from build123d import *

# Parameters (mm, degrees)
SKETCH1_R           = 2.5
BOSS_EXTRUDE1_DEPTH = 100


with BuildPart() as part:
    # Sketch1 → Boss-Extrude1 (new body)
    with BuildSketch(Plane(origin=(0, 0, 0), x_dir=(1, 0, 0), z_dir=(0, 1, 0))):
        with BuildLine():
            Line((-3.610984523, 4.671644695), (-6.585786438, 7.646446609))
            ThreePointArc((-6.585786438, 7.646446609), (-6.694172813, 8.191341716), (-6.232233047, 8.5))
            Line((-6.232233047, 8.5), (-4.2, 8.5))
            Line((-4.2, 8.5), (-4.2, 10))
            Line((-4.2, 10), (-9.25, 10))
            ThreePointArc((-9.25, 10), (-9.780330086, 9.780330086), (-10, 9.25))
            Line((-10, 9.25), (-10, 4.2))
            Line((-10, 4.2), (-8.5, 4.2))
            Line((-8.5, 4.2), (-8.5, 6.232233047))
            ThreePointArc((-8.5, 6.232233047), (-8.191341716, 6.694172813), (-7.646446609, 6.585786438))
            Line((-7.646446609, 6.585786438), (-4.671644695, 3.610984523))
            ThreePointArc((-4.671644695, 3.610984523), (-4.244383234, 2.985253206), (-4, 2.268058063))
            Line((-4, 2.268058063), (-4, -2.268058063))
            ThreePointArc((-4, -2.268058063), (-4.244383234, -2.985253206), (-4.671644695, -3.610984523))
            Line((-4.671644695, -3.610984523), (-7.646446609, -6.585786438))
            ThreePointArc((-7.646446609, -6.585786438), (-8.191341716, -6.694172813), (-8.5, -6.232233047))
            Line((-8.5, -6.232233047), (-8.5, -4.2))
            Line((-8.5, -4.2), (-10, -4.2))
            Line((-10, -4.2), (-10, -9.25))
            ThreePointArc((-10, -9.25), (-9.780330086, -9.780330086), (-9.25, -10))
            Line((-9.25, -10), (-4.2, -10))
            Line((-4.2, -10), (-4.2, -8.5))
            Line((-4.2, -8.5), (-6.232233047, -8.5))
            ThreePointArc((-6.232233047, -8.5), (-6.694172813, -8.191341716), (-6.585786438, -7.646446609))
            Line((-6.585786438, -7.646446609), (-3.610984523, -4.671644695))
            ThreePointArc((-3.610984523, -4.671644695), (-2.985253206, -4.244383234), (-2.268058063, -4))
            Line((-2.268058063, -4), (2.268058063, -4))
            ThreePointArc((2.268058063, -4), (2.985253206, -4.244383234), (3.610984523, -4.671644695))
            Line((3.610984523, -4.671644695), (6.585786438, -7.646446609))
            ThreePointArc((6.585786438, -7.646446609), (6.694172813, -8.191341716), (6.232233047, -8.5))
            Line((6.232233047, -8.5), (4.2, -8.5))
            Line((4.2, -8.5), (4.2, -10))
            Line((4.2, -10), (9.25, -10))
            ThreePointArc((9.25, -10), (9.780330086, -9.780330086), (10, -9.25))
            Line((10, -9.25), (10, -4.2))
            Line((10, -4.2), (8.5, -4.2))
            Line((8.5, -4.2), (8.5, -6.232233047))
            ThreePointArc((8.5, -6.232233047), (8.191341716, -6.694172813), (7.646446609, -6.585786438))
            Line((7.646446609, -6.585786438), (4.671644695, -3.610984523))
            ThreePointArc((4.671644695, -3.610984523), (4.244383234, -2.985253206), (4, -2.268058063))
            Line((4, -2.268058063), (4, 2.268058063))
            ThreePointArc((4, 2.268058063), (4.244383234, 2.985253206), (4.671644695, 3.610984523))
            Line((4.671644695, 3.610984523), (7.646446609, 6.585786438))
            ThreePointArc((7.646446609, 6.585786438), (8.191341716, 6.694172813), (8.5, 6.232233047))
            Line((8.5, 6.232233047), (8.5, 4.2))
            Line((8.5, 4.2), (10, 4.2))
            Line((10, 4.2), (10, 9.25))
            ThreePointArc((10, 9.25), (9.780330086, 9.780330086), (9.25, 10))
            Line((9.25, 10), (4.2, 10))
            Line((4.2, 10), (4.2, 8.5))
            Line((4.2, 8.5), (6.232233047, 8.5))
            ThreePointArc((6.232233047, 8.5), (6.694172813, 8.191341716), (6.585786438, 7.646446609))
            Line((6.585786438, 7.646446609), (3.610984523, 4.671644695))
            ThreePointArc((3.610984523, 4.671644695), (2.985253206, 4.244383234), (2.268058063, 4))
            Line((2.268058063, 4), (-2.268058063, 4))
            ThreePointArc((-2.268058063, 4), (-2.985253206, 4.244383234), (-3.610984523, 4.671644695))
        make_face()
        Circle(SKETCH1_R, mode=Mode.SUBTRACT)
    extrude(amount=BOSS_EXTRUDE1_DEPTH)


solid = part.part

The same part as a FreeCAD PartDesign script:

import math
import FreeCAD as App
import Part
import Sketcher
from FreeCAD import Vector
Q = App.Units.Quantity

doc = App.newDocument("Part")
body = doc.addObject("PartDesign::Body", "Body")

# Sketch on XZ plane
sketch1 = doc.addObject("Sketcher::SketchObject", "Sketch")
body.addObject(sketch1)
sketch1.AttachmentSupport = (doc.XZ_Plane, [""])
sketch1.MapMode = "FlatFace"
sketch1.addGeometry(Part.LineSegment(Vector(-3.6, -4.7, 0), Vector(-6.6, -7.6, 0)), False)
sketch1.addGeometry(Part.ArcOfCircle(Part.Circle(Vector(-6.2, -8, 0), Vector(0, 0, 1), 0.5), math.radians(135), math.radians(270)), False)
sketch1.addGeometry(Part.LineSegment(Vector(-6.2, -8.5, 0), Vector(-4.2, -8.5, 0)), False)
sketch1.addGeometry(Part.LineSegment(Vector(-4.2, -8.5, 0), Vector(-4.2, -10, 0)), False)
sketch1.addGeometry(Part.LineSegment(Vector(-4.2, -10, 0), Vector(-9.2, -10, 0)), False)
sketch1.addGeometry(Part.ArcOfCircle(Part.Circle(Vector(-9.2, -9.2, 0), Vector(0, 0, 1), 0.8), math.radians(180), math.radians(270)), False)
sketch1.addGeometry(Part.LineSegment(Vector(-10, -9.2, 0), Vector(-10, -4.2, 0)), False)
sketch1.addGeometry(Part.LineSegment(Vector(-10, -4.2, 0), Vector(-8.5, -4.2, 0)), False)
sketch1.addGeometry(Part.LineSegment(Vector(-8.5, -4.2, 0), Vector(-8.5, -6.2, 0)), False)
sketch1.addGeometry(Part.ArcOfCircle(Part.Circle(Vector(-8, -6.2, 0), Vector(0, 0, 1), 0.5), math.radians(-180), math.radians(-45)), False)
sketch1.addGeometry(Part.LineSegment(Vector(-7.6, -6.6, 0), Vector(-4.7, -3.6, 0)), False)
sketch1.addGeometry(Part.ArcOfCircle(Part.Circle(Vector(-6.8, -1.7, 0), Vector(0, 0, 1), 2.8), math.radians(-42), math.radians(-11)), False)
sketch1.addGeometry(Part.LineSegment(Vector(-4, -2.3, 0), Vector(-4, 2.3, 0)), False)
sketch1.addGeometry(Part.ArcOfCircle(Part.Circle(Vector(-6.8, 1.7, 0), Vector(0, 0, 1), 2.8), math.radians(11), math.radians(42)), False)
sketch1.addGeometry(Part.LineSegment(Vector(-4.7, 3.6, 0), Vector(-7.6, 6.6, 0)), False)
sketch1.addGeometry(Part.ArcOfCircle(Part.Circle(Vector(-8, 6.2, 0), Vector(0, 0, 1), 0.5), math.radians(45), math.radians(180)), False)
sketch1.addGeometry(Part.LineSegment(Vector(-8.5, 6.2, 0), Vector(-8.5, 4.2, 0)), False)
sketch1.addGeometry(Part.LineSegment(Vector(-8.5, 4.2, 0), Vector(-10, 4.2, 0)), False)
sketch1.addGeometry(Part.LineSegment(Vector(-10, 4.2, 0), Vector(-10, 9.2, 0)), False)
sketch1.addGeometry(Part.ArcOfCircle(Part.Circle(Vector(-9.2, 9.2, 0), Vector(0, 0, 1), 0.8), math.radians(90), math.radians(180)), False)
sketch1.addGeometry(Part.LineSegment(Vector(-9.2, 10, 0), Vector(-4.2, 10, 0)), False)
sketch1.addGeometry(Part.LineSegment(Vector(-4.2, 10, 0), Vector(-4.2, 8.5, 0)), False)
sketch1.addGeometry(Part.LineSegment(Vector(-4.2, 8.5, 0), Vector(-6.2, 8.5, 0)), False)
sketch1.addGeometry(Part.ArcOfCircle(Part.Circle(Vector(-6.2, 8, 0), Vector(0, 0, 1), 0.5), math.radians(90), math.radians(225)), False)
sketch1.addGeometry(Part.LineSegment(Vector(-6.6, 7.6, 0), Vector(-3.6, 4.7, 0)), False)
sketch1.addGeometry(Part.ArcOfCircle(Part.Circle(Vector(-1.7, 6.8, 0), Vector(0, 0, 1), 2.8), math.radians(-132), math.radians(-101)), False)
sketch1.addGeometry(Part.LineSegment(Vector(-2.3, 4, 0), Vector(2.3, 4, 0)), False)
sketch1.addGeometry(Part.ArcOfCircle(Part.Circle(Vector(1.7, 6.8, 0), Vector(0, 0, 1), 2.8), math.radians(-79), math.radians(-48)), False)
sketch1.addGeometry(Part.LineSegment(Vector(3.6, 4.7, 0), Vector(6.6, 7.6, 0)), False)
sketch1.addGeometry(Part.ArcOfCircle(Part.Circle(Vector(6.2, 8, 0), Vector(0, 0, 1), 0.5), math.radians(-45), math.radians(90)), False)
sketch1.addGeometry(Part.LineSegment(Vector(6.2, 8.5, 0), Vector(4.2, 8.5, 0)), False)
sketch1.addGeometry(Part.LineSegment(Vector(4.2, 8.5, 0), Vector(4.2, 10, 0)), False)
sketch1.addGeometry(Part.LineSegment(Vector(4.2, 10, 0), Vector(9.2, 10, 0)), False)
sketch1.addGeometry(Part.ArcOfCircle(Part.Circle(Vector(9.2, 9.2, 0), Vector(0, 0, 1), 0.8), math.radians(0), math.radians(90)), False)
sketch1.addGeometry(Part.LineSegment(Vector(10, 9.2, 0), Vector(10, 4.2, 0)), False)
sketch1.addGeometry(Part.LineSegment(Vector(10, 4.2, 0), Vector(8.5, 4.2, 0)), False)
sketch1.addGeometry(Part.LineSegment(Vector(8.5, 4.2, 0), Vector(8.5, 6.2, 0)), False)
sketch1.addGeometry(Part.ArcOfCircle(Part.Circle(Vector(8, 6.2, 0), Vector(0, 0, 1), 0.5), math.radians(0), math.radians(135)), False)
sketch1.addGeometry(Part.LineSegment(Vector(7.6, 6.6, 0), Vector(4.7, 3.6, 0)), False)
sketch1.addGeometry(Part.ArcOfCircle(Part.Circle(Vector(6.8, 1.7, 0), Vector(0, 0, 1), 2.8), math.radians(138), math.radians(169)), False)
sketch1.addGeometry(Part.LineSegment(Vector(4, 2.3, 0), Vector(4, -2.3, 0)), False)
sketch1.addGeometry(Part.ArcOfCircle(Part.Circle(Vector(6.8, -1.7, 0), Vector(0, 0, 1), 2.8), math.radians(-169), math.radians(-138)), False)
sketch1.addGeometry(Part.LineSegment(Vector(4.7, -3.6, 0), Vector(7.6, -6.6, 0)), False)
sketch1.addGeometry(Part.ArcOfCircle(Part.Circle(Vector(8, -6.2, 0), Vector(0, 0, 1), 0.5), math.radians(-135), math.radians(0)), False)
sketch1.addGeometry(Part.LineSegment(Vector(8.5, -6.2, 0), Vector(8.5, -4.2, 0)), False)
sketch1.addGeometry(Part.LineSegment(Vector(8.5, -4.2, 0), Vector(10, -4.2, 0)), False)
sketch1.addGeometry(Part.LineSegment(Vector(10, -4.2, 0), Vector(10, -9.2, 0)), False)
sketch1.addGeometry(Part.ArcOfCircle(Part.Circle(Vector(9.2, -9.2, 0), Vector(0, 0, 1), 0.8), math.radians(-90), math.radians(0)), False)
sketch1.addGeometry(Part.LineSegment(Vector(9.2, -10, 0), Vector(4.2, -10, 0)), False)
sketch1.addGeometry(Part.LineSegment(Vector(4.2, -10, 0), Vector(4.2, -8.5, 0)), False)
sketch1.addGeometry(Part.LineSegment(Vector(4.2, -8.5, 0), Vector(6.2, -8.5, 0)), False)
sketch1.addGeometry(Part.ArcOfCircle(Part.Circle(Vector(6.2, -8, 0), Vector(0, 0, 1), 0.5), math.radians(-90), math.radians(45)), False)
sketch1.addGeometry(Part.LineSegment(Vector(6.6, -7.6, 0), Vector(3.6, -4.7, 0)), False)
sketch1.addGeometry(Part.ArcOfCircle(Part.Circle(Vector(1.7, -6.8, 0), Vector(0, 0, 1), 2.8), math.radians(48), math.radians(79)), False)
sketch1.addGeometry(Part.LineSegment(Vector(2.3, -4, 0), Vector(-2.3, -4, 0)), False)
sketch1.addGeometry(Part.ArcOfCircle(Part.Circle(Vector(-1.7, -6.8, 0), Vector(0, 0, 1), 2.8), math.radians(101), math.radians(132)), False)
sketch1.addGeometry(Part.Circle(Vector(0, 0, 0), Vector(0, 0, 1), 2.5), False)
sketch1.addConstraint(Sketcher.Constraint("Tangent", 0, 2, 1, 1))
sketch1.addConstraint(Sketcher.Constraint("Tangent", 1, 2, 2, 1))
sketch1.addConstraint(Sketcher.Constraint("Coincident", 2, 2, 3, 1))
sketch1.addConstraint(Sketcher.Constraint("Coincident", 3, 2, 4, 1))
sketch1.addConstraint(Sketcher.Constraint("Tangent", 4, 2, 5, 2))
sketch1.addConstraint(Sketcher.Constraint("Tangent", 5, 1, 6, 1))
sketch1.addConstraint(Sketcher.Constraint("Coincident", 6, 2, 7, 1))
sketch1.addConstraint(Sketcher.Constraint("Coincident", 7, 2, 8, 1))
sketch1.addConstraint(Sketcher.Constraint("Tangent", 8, 2, 9, 1))
sketch1.addConstraint(Sketcher.Constraint("Tangent", 9, 2, 10, 1))
sketch1.addConstraint(Sketcher.Constraint("Coincident", 10, 2, 11, 1))
sketch1.addConstraint(Sketcher.Constraint("Coincident", 11, 2, 12, 1))
sketch1.addConstraint(Sketcher.Constraint("Coincident", 12, 2, 13, 1))
sketch1.addConstraint(Sketcher.Constraint("Coincident", 13, 2, 14, 1))
sketch1.addConstraint(Sketcher.Constraint("Tangent", 14, 2, 15, 1))
sketch1.addConstraint(Sketcher.Constraint("Tangent", 15, 2, 16, 1))
sketch1.addConstraint(Sketcher.Constraint("Coincident", 16, 2, 17, 1))
sketch1.addConstraint(Sketcher.Constraint("Coincident", 17, 2, 18, 1))
sketch1.addConstraint(Sketcher.Constraint("Tangent", 18, 2, 19, 2))
sketch1.addConstraint(Sketcher.Constraint("Tangent", 19, 1, 20, 1))
sketch1.addConstraint(Sketcher.Constraint("Coincident", 20, 2, 21, 1))
sketch1.addConstraint(Sketcher.Constraint("Coincident", 21, 2, 22, 1))
sketch1.addConstraint(Sketcher.Constraint("Tangent", 22, 2, 23, 1))
sketch1.addConstraint(Sketcher.Constraint("Tangent", 23, 2, 24, 1))
sketch1.addConstraint(Sketcher.Constraint("Coincident", 24, 2, 25, 1))
sketch1.addConstraint(Sketcher.Constraint("Coincident", 25, 2, 26, 1))
sketch1.addConstraint(Sketcher.Constraint("Coincident", 26, 2, 27, 1))
sketch1.addConstraint(Sketcher.Constraint("Coincident", 27, 2, 28, 1))
sketch1.addConstraint(Sketcher.Constraint("Tangent", 28, 2, 29, 1))
sketch1.addConstraint(Sketcher.Constraint("Tangent", 29, 2, 30, 1))
sketch1.addConstraint(Sketcher.Constraint("Coincident", 30, 2, 31, 1))
sketch1.addConstraint(Sketcher.Constraint("Coincident", 31, 2, 32, 1))
sketch1.addConstraint(Sketcher.Constraint("Tangent", 32, 2, 33, 2))
sketch1.addConstraint(Sketcher.Constraint("Tangent", 33, 1, 34, 1))
sketch1.addConstraint(Sketcher.Constraint("Coincident", 34, 2, 35, 1))
sketch1.addConstraint(Sketcher.Constraint("Coincident", 35, 2, 36, 1))
sketch1.addConstraint(Sketcher.Constraint("Tangent", 36, 2, 37, 1))
sketch1.addConstraint(Sketcher.Constraint("Tangent", 37, 2, 38, 1))
sketch1.addConstraint(Sketcher.Constraint("Coincident", 38, 2, 39, 1))
sketch1.addConstraint(Sketcher.Constraint("Coincident", 39, 2, 40, 1))
sketch1.addConstraint(Sketcher.Constraint("Coincident", 40, 2, 41, 1))
sketch1.addConstraint(Sketcher.Constraint("Coincident", 41, 2, 42, 1))
sketch1.addConstraint(Sketcher.Constraint("Tangent", 42, 2, 43, 1))
sketch1.addConstraint(Sketcher.Constraint("Tangent", 43, 2, 44, 1))
sketch1.addConstraint(Sketcher.Constraint("Coincident", 44, 2, 45, 1))
sketch1.addConstraint(Sketcher.Constraint("Coincident", 45, 2, 46, 1))
sketch1.addConstraint(Sketcher.Constraint("Tangent", 46, 2, 47, 2))
sketch1.addConstraint(Sketcher.Constraint("Tangent", 47, 1, 48, 1))
sketch1.addConstraint(Sketcher.Constraint("Coincident", 48, 2, 49, 1))
sketch1.addConstraint(Sketcher.Constraint("Coincident", 49, 2, 50, 1))
sketch1.addConstraint(Sketcher.Constraint("Tangent", 50, 2, 51, 1))
sketch1.addConstraint(Sketcher.Constraint("Tangent", 51, 2, 52, 1))
sketch1.addConstraint(Sketcher.Constraint("Coincident", 52, 2, 53, 1))
sketch1.addConstraint(Sketcher.Constraint("Coincident", 53, 2, 54, 1))
sketch1.addConstraint(Sketcher.Constraint("Coincident", 54, 2, 55, 1))
sketch1.addConstraint(Sketcher.Constraint("Coincident", 55, 2, 0, 1))
sketch1.addConstraint(Sketcher.Constraint("Horizontal", 2))
sketch1.addConstraint(Sketcher.Constraint("Vertical", 3))
sketch1.addConstraint(Sketcher.Constraint("Horizontal", 4))
sketch1.addConstraint(Sketcher.Constraint("Vertical", 6))
sketch1.addConstraint(Sketcher.Constraint("Horizontal", 7))
sketch1.addConstraint(Sketcher.Constraint("Vertical", 8))
sketch1.addConstraint(Sketcher.Constraint("Vertical", 12))
sketch1.addConstraint(Sketcher.Constraint("Vertical", 16))
sketch1.addConstraint(Sketcher.Constraint("Horizontal", 17))
sketch1.addConstraint(Sketcher.Constraint("Vertical", 18))
sketch1.addConstraint(Sketcher.Constraint("Horizontal", 20))
sketch1.addConstraint(Sketcher.Constraint("Vertical", 21))
sketch1.addConstraint(Sketcher.Constraint("Horizontal", 22))
sketch1.addConstraint(Sketcher.Constraint("Horizontal", 26))
sketch1.addConstraint(Sketcher.Constraint("Horizontal", 30))
sketch1.addConstraint(Sketcher.Constraint("Vertical", 31))
sketch1.addConstraint(Sketcher.Constraint("Horizontal", 32))
sketch1.addConstraint(Sketcher.Constraint("Vertical", 34))
sketch1.addConstraint(Sketcher.Constraint("Horizontal", 35))
sketch1.addConstraint(Sketcher.Constraint("Vertical", 36))
sketch1.addConstraint(Sketcher.Constraint("Vertical", 40))
sketch1.addConstraint(Sketcher.Constraint("Vertical", 44))
sketch1.addConstraint(Sketcher.Constraint("Horizontal", 45))
sketch1.addConstraint(Sketcher.Constraint("Vertical", 46))
sketch1.addConstraint(Sketcher.Constraint("Horizontal", 48))
sketch1.addConstraint(Sketcher.Constraint("Vertical", 49))
sketch1.addConstraint(Sketcher.Constraint("Horizontal", 50))
sketch1.addConstraint(Sketcher.Constraint("Horizontal", 54))
sketch1.addConstraint(Sketcher.Constraint("Coincident", 56, 3, -1, 1))
sketch1.addConstraint(Sketcher.Constraint("Equal", 1, 9))
sketch1.addConstraint(Sketcher.Constraint("Equal", 11, 13))
sketch1.addConstraint(Sketcher.Constraint("Equal", 9, 15))
sketch1.addConstraint(Sketcher.Constraint("Equal", 5, 19))
sketch1.addConstraint(Sketcher.Constraint("Equal", 15, 23))
sketch1.addConstraint(Sketcher.Constraint("Equal", 13, 25))
sketch1.addConstraint(Sketcher.Constraint("Equal", 25, 27))
sketch1.addConstraint(Sketcher.Constraint("Equal", 23, 29))
sketch1.addConstraint(Sketcher.Constraint("Equal", 19, 33))
sketch1.addConstraint(Sketcher.Constraint("Equal", 29, 37))
sketch1.addConstraint(Sketcher.Constraint("Equal", 27, 39))
sketch1.addConstraint(Sketcher.Constraint("Equal", 39, 41))
sketch1.addConstraint(Sketcher.Constraint("Equal", 37, 43))
sketch1.addConstraint(Sketcher.Constraint("Equal", 33, 47))
sketch1.addConstraint(Sketcher.Constraint("Equal", 43, 51))
sketch1.addConstraint(Sketcher.Constraint("Equal", 41, 53))
sketch1.addConstraint(Sketcher.Constraint("Equal", 53, 55))
sketch1.addConstraint(Sketcher.Constraint("Symmetric", 1, 3, 29, 3, -1, 1))
sketch1.addConstraint(Sketcher.Constraint("Symmetric", 5, 3, 33, 3, -1, 1))
sketch1.addConstraint(Sketcher.Constraint("Symmetric", 9, 3, 37, 3, -1, 1))
sketch1.addConstraint(Sketcher.Constraint("Symmetric", 11, 3, 39, 3, -1, 1))
sketch1.addConstraint(Sketcher.Constraint("Symmetric", 13, 3, 41, 3, -1, 1))
sketch1.addConstraint(Sketcher.Constraint("Symmetric", 15, 3, 43, 3, -1, 1))
sketch1.addConstraint(Sketcher.Constraint("Symmetric", 19, 3, 47, 3, -1, 1))
sketch1.addConstraint(Sketcher.Constraint("Symmetric", 23, 3, 51, 3, -1, 1))
sketch1.addConstraint(Sketcher.Constraint("Symmetric", 25, 3, 53, 3, -1, 1))
sketch1.addConstraint(Sketcher.Constraint("Symmetric", 27, 3, 55, 3, -1, 1))
sketch1.addConstraint(Sketcher.Constraint("Symmetric", 25, 3, 27, 3, -2))
sketch1.addConstraint(Sketcher.Constraint("Symmetric", 23, 3, 29, 3, -2))
sketch1.addConstraint(Sketcher.Constraint("Symmetric", 19, 3, 33, 3, -2))
sketch1.addConstraint(Sketcher.Constraint("Symmetric", 15, 3, 37, 3, -2))
sketch1.addConstraint(Sketcher.Constraint("Symmetric", 13, 3, 39, 3, -2))
sketch1.addConstraint(Sketcher.Constraint("Parallel", 0, 10))
sketch1.addConstraint(Sketcher.Constraint("Perpendicular", 10, 14))
sketch1.addConstraint(Sketcher.Constraint("Parallel", 14, 24))
sketch1.addConstraint(Sketcher.Constraint("Perpendicular", 24, 28))
sketch1.addConstraint(Sketcher.Constraint("Parallel", 28, 38))
sketch1.addConstraint(Sketcher.Constraint("Perpendicular", 38, 42))
sketch1.addConstraint(Sketcher.Constraint("Parallel", 42, 52))
sketch1.addConstraint(Sketcher.Constraint("Horizontal", 24, 2, 27, 2))
sketch1.addConstraint(Sketcher.Constraint("Horizontal", 17, 2, 34, 2))
sketch1.addConstraint(Sketcher.Constraint("Horizontal", 12, 2, 39, 2))
sketch1.addConstraint(Sketcher.Constraint("Horizontal", 7, 2, 44, 2))
sketch1.addConstraint(Sketcher.Constraint("Vertical", 3, 2, 20, 2))
sketch1.addConstraint(Sketcher.Constraint("Vertical", 31, 2, 48, 2))
sketch1.addConstraint(Sketcher.Constraint("Vertical", 26, 2, 53, 2))
sketch1.addConstraint(Sketcher.Constraint("Equal", 22, 30))
sketch1.addConstraint(Sketcher.Constraint("Equal", 45, 3))
sketch1.addConstraint(Sketcher.Constraint("Equal", 48, 6))
sketch1.addConstraint(Sketcher.Constraint("Equal", 50, 8))
sketch1.addConstraint(Sketcher.Constraint("Equal", 54, 12))
sketch1.addConstraint(Sketcher.Constraint("Equal", 8, 16))
sketch1.addConstraint(Sketcher.Constraint("Equal", 0, 10))
sketch1.addConstraint(Sketcher.Constraint("Diameter", 56, Q("5 mm")))
sketch1.addConstraint(Sketcher.Constraint("Radius", 1, Q("0.5 mm")))
sketch1.addConstraint(Sketcher.Constraint("Radius", 5, Q("0.75 mm")))
sketch1.addConstraint(Sketcher.Constraint("DistanceX", 7, 1, 7, 2, Q("1.5 mm")))
sketch1.addConstraint(Sketcher.Constraint("DistanceY", 1, 3, -1, 1, Q("8 mm")))
sketch1.addConstraint(Sketcher.Constraint("DistanceX", 9, 3, -1, 1, Q("8 mm")))
sketch1.addConstraint(Sketcher.Constraint("DistanceX", 11, 2, -1, 1, Q("4 mm")))
sketch1.addConstraint(Sketcher.Constraint("DistanceY", -1, 1, 25, 2, Q("4 mm")))
sketch1.addConstraint(Sketcher.Constraint("DistanceX", 4, 2, 4, 1, Q("5.05 mm")))
sketch1.addConstraint(Sketcher.Constraint("Radius", 11, Q("2.807638 mm")))
sketch1.addConstraint(Sketcher.Constraint("DistanceX", 2, 1, 2, 2, Q("2.032233 mm")))
sketch1.addConstraint(Sketcher.Constraint("DistanceX", 26, 1, 26, 2, Q("4.536116 mm")))
sketch1.addConstraint(Sketcher.Constraint("DistanceY", 11, 3, -1, 1, Q("1.729368 mm")))
pad1 = doc.addObject("PartDesign::Pad", "Pad")
body.addObject(pad1)
pad1.Profile = sketch1
pad1.Length = 100
pad1.Reversed = True

doc.recompute()
